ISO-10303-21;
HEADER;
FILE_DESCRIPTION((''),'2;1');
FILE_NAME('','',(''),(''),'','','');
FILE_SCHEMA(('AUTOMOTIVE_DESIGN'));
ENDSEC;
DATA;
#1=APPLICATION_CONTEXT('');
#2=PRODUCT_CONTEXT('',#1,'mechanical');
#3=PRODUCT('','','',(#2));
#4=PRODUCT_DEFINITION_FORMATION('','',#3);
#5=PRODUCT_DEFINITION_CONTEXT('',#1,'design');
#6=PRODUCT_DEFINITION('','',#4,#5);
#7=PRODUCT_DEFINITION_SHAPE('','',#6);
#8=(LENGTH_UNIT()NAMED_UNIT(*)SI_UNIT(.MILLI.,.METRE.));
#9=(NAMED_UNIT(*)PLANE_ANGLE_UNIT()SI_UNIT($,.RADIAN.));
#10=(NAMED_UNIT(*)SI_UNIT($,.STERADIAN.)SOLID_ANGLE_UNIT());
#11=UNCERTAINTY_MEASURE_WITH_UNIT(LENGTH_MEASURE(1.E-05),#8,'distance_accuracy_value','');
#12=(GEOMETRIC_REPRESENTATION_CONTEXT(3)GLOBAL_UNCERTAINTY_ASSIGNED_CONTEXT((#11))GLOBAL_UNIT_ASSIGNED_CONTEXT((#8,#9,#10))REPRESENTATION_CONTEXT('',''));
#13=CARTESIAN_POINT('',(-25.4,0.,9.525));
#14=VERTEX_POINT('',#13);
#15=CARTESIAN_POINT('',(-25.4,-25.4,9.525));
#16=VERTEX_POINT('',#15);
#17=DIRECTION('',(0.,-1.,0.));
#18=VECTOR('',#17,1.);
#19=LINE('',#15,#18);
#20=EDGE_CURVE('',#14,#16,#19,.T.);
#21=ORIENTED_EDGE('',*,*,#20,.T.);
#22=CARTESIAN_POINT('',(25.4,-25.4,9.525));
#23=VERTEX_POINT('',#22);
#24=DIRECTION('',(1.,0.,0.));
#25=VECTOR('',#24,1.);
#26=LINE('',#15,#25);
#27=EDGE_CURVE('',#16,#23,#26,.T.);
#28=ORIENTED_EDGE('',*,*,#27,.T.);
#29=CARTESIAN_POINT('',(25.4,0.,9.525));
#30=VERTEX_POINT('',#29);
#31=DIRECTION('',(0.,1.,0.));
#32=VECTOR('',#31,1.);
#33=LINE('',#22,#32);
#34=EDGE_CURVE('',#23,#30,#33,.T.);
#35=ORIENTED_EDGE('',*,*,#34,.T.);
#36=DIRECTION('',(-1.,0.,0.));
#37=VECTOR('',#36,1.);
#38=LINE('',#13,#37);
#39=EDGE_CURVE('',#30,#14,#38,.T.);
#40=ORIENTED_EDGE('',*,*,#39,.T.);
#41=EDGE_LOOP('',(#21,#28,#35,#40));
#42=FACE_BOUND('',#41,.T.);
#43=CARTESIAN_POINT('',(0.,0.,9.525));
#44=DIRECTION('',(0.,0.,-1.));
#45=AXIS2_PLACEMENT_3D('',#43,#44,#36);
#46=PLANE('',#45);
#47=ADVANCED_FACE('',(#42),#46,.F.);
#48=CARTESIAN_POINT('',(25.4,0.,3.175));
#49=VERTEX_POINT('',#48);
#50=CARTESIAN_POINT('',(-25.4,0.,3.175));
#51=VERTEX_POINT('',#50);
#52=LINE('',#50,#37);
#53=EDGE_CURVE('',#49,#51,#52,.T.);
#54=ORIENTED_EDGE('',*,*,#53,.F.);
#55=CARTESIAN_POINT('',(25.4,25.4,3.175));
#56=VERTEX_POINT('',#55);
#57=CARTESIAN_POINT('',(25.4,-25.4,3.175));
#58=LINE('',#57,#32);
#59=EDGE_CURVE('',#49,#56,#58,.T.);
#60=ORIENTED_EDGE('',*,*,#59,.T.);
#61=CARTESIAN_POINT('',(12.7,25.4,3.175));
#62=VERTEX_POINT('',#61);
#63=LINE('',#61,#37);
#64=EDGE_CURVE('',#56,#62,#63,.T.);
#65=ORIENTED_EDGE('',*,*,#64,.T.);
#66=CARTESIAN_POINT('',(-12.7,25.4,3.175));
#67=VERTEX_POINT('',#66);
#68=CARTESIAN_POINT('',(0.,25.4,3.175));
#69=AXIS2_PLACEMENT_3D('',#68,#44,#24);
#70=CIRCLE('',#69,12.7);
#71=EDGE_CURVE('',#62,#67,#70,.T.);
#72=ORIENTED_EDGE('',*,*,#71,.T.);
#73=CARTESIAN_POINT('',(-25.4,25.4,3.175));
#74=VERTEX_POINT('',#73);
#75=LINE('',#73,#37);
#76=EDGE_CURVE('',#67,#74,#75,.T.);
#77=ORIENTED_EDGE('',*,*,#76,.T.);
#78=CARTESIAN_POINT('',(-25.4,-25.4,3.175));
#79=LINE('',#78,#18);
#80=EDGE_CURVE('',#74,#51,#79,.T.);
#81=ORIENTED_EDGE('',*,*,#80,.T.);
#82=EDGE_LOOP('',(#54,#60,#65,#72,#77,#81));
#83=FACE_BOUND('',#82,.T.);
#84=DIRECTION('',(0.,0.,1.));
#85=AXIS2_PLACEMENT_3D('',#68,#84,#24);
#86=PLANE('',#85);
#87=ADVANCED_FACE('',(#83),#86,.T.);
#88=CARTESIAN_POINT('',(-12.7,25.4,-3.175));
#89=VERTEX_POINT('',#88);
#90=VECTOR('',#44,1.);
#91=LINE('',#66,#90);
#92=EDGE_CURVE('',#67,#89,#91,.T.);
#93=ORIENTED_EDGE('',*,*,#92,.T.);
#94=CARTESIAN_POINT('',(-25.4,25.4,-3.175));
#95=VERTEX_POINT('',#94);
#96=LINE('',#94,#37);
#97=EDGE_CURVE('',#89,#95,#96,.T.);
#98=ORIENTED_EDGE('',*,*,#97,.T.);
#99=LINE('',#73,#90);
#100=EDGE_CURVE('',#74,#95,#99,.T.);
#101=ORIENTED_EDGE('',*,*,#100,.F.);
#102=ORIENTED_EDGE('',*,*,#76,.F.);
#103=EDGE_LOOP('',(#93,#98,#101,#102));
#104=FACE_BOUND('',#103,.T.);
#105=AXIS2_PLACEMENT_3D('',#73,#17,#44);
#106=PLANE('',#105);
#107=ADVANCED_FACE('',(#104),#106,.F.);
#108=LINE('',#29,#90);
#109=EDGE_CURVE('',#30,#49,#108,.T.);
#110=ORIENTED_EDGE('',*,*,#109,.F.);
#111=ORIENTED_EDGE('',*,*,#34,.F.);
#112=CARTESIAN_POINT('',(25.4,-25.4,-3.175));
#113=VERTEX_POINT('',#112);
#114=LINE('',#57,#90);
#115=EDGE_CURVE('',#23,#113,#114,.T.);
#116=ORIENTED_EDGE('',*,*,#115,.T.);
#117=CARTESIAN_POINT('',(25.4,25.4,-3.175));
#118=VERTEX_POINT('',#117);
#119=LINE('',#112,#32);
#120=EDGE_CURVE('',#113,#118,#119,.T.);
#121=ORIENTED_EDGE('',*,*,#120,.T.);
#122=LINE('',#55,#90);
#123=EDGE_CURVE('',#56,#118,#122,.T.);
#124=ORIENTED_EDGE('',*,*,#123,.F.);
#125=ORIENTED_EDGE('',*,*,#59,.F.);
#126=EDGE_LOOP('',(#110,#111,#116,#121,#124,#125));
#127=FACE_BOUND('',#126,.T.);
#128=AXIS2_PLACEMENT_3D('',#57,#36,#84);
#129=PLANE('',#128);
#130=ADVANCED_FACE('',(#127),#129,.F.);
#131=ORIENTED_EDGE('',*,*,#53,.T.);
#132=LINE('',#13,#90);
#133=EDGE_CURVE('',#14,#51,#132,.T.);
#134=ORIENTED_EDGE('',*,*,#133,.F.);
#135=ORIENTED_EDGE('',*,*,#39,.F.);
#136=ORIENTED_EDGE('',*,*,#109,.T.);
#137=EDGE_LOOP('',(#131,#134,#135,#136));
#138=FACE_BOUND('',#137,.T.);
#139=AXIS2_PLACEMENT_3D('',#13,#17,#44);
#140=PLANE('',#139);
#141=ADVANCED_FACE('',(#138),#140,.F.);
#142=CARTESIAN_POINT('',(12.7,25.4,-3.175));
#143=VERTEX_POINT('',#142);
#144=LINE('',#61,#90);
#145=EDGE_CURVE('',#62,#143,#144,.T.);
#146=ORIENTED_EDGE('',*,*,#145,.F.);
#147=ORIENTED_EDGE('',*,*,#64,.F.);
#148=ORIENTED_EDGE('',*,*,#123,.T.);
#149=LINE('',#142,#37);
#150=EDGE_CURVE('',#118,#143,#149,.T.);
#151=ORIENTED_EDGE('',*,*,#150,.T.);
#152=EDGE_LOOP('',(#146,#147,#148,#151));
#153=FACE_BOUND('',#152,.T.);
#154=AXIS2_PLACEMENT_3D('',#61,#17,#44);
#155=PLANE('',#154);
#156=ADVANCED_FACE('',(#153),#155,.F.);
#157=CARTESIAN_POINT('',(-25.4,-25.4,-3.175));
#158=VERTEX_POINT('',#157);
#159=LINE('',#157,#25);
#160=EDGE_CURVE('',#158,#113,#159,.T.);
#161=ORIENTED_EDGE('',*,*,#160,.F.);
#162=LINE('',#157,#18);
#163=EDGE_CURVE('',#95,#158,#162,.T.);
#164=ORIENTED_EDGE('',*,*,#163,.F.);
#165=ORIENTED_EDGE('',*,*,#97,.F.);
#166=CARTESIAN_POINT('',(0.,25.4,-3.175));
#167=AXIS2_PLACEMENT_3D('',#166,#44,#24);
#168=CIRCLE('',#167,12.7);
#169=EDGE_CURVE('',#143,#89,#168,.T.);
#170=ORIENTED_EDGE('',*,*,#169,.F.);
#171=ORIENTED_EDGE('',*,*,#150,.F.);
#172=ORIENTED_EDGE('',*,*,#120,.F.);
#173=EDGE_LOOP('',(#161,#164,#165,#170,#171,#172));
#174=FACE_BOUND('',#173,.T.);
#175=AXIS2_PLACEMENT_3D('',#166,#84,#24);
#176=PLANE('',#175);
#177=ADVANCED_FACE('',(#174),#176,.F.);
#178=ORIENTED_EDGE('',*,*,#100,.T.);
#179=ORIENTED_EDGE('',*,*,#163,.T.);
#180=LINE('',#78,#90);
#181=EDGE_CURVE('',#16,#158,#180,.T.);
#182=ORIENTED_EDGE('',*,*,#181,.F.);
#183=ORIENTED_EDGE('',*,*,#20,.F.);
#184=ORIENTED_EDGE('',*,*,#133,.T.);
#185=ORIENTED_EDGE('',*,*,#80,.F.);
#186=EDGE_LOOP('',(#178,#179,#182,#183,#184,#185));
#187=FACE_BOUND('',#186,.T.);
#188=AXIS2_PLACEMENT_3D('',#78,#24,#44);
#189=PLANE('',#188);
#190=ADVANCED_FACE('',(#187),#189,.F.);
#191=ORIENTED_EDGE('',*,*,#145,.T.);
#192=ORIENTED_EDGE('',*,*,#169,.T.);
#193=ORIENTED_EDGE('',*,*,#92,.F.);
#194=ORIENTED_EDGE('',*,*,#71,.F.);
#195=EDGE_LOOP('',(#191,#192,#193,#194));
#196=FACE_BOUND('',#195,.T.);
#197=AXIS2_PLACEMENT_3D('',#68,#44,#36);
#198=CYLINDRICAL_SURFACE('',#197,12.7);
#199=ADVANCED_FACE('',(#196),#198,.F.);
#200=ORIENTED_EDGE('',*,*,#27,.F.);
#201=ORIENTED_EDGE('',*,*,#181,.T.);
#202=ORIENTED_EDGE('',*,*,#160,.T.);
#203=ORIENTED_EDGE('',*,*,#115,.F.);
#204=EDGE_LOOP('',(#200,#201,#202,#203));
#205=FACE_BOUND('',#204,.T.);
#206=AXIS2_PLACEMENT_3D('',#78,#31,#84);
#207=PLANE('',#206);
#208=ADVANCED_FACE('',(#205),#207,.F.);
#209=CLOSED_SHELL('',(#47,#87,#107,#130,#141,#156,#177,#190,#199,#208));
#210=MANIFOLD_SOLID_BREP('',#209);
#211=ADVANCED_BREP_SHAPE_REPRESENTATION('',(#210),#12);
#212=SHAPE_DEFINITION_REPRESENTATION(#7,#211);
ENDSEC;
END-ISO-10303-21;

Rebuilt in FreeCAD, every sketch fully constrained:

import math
import FreeCAD as App
import Part
import Sketcher
Q = App.Units.Quantity


def add_polygon(sketch, points):
    """Adds a closed chain of lines whose ends are joined by coincident constraints."""
    first, n = sketch.GeometryCount, len(points)
    for a, b in zip(points, points[1:] + points[:1]):
        sketch.addGeometry(Part.LineSegment(App.Vector(*a, 0), App.Vector(*b, 0)), False)
    for i in range(n):
        sketch.addConstraint(Sketcher.Constraint("Coincident", first + i, 2, first + (i + 1) % n, 1))

doc = App.newDocument("Part")
body = doc.addObject("PartDesign::Body", "Body")

# Sketch on XY plane
sketch1 = doc.addObject("Sketcher::SketchObject", "Sketch")
body.addObject(sketch1)
sketch1.AttachmentSupport = (doc.XY_Plane, [""])
sketch1.MapMode = "FlatFace"
sketch1.addGeometry(Part.LineSegment(App.Vector(25, 25, 0), App.Vector(13, 25, 0)), False)
sketch1.addGeometry(Part.ArcOfCircle(Part.Circle(App.Vector(0, 25, 0), App.Vector(0, 0, 1), 13), math.radians(180), math.radians(360)), False)
sketch1.addGeometry(Part.LineSegment(App.Vector(-13, 25, 0), App.Vector(-25, 25, 0)), False)
sketch1.addGeometry(Part.LineSegment(App.Vector(-25, 25, 0), App.Vector(-25, -25, 0)), False)
sketch1.addGeometry(Part.LineSegment(App.Vector(-25, -25, 0), App.Vector(25, -25, 0)), False)
sketch1.addGeometry(Part.LineSegment(App.Vector(25, -25, 0), App.Vector(25, 25, 0)), False)
sketch1.addConstraint(Sketcher.Constraint("Coincident", 0, 2, 1, 2))
sketch1.addConstraint(Sketcher.Constraint("Coincident", 1, 1, 2, 1))
sketch1.addConstraint(Sketcher.Constraint("Coincident", 2, 2, 3, 1))
sketch1.addConstraint(Sketcher.Constraint("Coincident", 3, 2, 4, 1))
sketch1.addConstraint(Sketcher.Constraint("Coincident", 4, 2, 5, 1))
sketch1.addConstraint(Sketcher.Constraint("Coincident", 5, 2, 0, 1))
sketch1.addConstraint(Sketcher.Constraint("Horizontal", 0))
sketch1.addConstraint(Sketcher.Constraint("Horizontal", 2))
sketch1.addConstraint(Sketcher.Constraint("Vertical", 3))
sketch1.addConstraint(Sketcher.Constraint("Horizontal", 4))
sketch1.addConstraint(Sketcher.Constraint("Vertical", 5))
sketch1.addConstraint(Sketcher.Constraint("Symmetric", 2, 2, 4, 2, -1, 1))
sketch1.addConstraint(Sketcher.Constraint("Symmetric", 0, 2, 1, 1, -2))
sketch1.addConstraint(Sketcher.Constraint("Horizontal", 1, 3, 0, 2))
sketch1.addConstraint(Sketcher.Constraint("Equal", 4, 3))
sketch1.addConstraint(Sketcher.Constraint("Radius", 1, Q("0.5 in")))
sketch1.addConstraint(Sketcher.Constraint("DistanceX", 4, 1, 4, 2, Q("2 in")))
pad1 = doc.addObject("PartDesign::Pad", "Pad")
body.addObject(pad1)
pad1.Profile = sketch1
pad1.Length = Q("0.25 in")
pad1.Midplane = True

# Sketch on XY plane
sketch2 = doc.addObject("Sketcher::SketchObject", "Sketch001")
body.addObject(sketch2)
sketch2.AttachmentSupport = (doc.XY_Plane, [""])
sketch2.MapMode = "FlatFace"
sketch2.AttachmentOffset = App.Placement(App.Vector(0, 0, 0.125 * 25.4), App.Rotation())
add_polygon(sketch2, [(-25, 0), (-25, -25), (25, -25), (25, 0)])  # lines 0-3
sketch2.addConstraint(Sketcher.Constraint("Vertical", 0))
sketch2.addConstraint(Sketcher.Constraint("Horizontal", 1))
sketch2.addConstraint(Sketcher.Constraint("Vertical", 2))
sketch2.addConstraint(Sketcher.Constraint("Horizontal", 3))
sketch2.addConstraint(Sketcher.Constraint("Symmetric", 2, 2, 3, 2, -1, 1))
sketch2.addConstraint(Sketcher.Constraint("DistanceX", 1, 1, 1, 2, Q("2 in")))
sketch2.addConstraint(Sketcher.Constraint("DistanceY", 0, 2, 0, 1, Q("1 in")))
pad2 = doc.addObject("PartDesign::Pad", "Pad001")
body.addObject(pad2)
pad2.Profile = sketch2
pad2.Length = Q("0.25 in")

doc.recompute()
